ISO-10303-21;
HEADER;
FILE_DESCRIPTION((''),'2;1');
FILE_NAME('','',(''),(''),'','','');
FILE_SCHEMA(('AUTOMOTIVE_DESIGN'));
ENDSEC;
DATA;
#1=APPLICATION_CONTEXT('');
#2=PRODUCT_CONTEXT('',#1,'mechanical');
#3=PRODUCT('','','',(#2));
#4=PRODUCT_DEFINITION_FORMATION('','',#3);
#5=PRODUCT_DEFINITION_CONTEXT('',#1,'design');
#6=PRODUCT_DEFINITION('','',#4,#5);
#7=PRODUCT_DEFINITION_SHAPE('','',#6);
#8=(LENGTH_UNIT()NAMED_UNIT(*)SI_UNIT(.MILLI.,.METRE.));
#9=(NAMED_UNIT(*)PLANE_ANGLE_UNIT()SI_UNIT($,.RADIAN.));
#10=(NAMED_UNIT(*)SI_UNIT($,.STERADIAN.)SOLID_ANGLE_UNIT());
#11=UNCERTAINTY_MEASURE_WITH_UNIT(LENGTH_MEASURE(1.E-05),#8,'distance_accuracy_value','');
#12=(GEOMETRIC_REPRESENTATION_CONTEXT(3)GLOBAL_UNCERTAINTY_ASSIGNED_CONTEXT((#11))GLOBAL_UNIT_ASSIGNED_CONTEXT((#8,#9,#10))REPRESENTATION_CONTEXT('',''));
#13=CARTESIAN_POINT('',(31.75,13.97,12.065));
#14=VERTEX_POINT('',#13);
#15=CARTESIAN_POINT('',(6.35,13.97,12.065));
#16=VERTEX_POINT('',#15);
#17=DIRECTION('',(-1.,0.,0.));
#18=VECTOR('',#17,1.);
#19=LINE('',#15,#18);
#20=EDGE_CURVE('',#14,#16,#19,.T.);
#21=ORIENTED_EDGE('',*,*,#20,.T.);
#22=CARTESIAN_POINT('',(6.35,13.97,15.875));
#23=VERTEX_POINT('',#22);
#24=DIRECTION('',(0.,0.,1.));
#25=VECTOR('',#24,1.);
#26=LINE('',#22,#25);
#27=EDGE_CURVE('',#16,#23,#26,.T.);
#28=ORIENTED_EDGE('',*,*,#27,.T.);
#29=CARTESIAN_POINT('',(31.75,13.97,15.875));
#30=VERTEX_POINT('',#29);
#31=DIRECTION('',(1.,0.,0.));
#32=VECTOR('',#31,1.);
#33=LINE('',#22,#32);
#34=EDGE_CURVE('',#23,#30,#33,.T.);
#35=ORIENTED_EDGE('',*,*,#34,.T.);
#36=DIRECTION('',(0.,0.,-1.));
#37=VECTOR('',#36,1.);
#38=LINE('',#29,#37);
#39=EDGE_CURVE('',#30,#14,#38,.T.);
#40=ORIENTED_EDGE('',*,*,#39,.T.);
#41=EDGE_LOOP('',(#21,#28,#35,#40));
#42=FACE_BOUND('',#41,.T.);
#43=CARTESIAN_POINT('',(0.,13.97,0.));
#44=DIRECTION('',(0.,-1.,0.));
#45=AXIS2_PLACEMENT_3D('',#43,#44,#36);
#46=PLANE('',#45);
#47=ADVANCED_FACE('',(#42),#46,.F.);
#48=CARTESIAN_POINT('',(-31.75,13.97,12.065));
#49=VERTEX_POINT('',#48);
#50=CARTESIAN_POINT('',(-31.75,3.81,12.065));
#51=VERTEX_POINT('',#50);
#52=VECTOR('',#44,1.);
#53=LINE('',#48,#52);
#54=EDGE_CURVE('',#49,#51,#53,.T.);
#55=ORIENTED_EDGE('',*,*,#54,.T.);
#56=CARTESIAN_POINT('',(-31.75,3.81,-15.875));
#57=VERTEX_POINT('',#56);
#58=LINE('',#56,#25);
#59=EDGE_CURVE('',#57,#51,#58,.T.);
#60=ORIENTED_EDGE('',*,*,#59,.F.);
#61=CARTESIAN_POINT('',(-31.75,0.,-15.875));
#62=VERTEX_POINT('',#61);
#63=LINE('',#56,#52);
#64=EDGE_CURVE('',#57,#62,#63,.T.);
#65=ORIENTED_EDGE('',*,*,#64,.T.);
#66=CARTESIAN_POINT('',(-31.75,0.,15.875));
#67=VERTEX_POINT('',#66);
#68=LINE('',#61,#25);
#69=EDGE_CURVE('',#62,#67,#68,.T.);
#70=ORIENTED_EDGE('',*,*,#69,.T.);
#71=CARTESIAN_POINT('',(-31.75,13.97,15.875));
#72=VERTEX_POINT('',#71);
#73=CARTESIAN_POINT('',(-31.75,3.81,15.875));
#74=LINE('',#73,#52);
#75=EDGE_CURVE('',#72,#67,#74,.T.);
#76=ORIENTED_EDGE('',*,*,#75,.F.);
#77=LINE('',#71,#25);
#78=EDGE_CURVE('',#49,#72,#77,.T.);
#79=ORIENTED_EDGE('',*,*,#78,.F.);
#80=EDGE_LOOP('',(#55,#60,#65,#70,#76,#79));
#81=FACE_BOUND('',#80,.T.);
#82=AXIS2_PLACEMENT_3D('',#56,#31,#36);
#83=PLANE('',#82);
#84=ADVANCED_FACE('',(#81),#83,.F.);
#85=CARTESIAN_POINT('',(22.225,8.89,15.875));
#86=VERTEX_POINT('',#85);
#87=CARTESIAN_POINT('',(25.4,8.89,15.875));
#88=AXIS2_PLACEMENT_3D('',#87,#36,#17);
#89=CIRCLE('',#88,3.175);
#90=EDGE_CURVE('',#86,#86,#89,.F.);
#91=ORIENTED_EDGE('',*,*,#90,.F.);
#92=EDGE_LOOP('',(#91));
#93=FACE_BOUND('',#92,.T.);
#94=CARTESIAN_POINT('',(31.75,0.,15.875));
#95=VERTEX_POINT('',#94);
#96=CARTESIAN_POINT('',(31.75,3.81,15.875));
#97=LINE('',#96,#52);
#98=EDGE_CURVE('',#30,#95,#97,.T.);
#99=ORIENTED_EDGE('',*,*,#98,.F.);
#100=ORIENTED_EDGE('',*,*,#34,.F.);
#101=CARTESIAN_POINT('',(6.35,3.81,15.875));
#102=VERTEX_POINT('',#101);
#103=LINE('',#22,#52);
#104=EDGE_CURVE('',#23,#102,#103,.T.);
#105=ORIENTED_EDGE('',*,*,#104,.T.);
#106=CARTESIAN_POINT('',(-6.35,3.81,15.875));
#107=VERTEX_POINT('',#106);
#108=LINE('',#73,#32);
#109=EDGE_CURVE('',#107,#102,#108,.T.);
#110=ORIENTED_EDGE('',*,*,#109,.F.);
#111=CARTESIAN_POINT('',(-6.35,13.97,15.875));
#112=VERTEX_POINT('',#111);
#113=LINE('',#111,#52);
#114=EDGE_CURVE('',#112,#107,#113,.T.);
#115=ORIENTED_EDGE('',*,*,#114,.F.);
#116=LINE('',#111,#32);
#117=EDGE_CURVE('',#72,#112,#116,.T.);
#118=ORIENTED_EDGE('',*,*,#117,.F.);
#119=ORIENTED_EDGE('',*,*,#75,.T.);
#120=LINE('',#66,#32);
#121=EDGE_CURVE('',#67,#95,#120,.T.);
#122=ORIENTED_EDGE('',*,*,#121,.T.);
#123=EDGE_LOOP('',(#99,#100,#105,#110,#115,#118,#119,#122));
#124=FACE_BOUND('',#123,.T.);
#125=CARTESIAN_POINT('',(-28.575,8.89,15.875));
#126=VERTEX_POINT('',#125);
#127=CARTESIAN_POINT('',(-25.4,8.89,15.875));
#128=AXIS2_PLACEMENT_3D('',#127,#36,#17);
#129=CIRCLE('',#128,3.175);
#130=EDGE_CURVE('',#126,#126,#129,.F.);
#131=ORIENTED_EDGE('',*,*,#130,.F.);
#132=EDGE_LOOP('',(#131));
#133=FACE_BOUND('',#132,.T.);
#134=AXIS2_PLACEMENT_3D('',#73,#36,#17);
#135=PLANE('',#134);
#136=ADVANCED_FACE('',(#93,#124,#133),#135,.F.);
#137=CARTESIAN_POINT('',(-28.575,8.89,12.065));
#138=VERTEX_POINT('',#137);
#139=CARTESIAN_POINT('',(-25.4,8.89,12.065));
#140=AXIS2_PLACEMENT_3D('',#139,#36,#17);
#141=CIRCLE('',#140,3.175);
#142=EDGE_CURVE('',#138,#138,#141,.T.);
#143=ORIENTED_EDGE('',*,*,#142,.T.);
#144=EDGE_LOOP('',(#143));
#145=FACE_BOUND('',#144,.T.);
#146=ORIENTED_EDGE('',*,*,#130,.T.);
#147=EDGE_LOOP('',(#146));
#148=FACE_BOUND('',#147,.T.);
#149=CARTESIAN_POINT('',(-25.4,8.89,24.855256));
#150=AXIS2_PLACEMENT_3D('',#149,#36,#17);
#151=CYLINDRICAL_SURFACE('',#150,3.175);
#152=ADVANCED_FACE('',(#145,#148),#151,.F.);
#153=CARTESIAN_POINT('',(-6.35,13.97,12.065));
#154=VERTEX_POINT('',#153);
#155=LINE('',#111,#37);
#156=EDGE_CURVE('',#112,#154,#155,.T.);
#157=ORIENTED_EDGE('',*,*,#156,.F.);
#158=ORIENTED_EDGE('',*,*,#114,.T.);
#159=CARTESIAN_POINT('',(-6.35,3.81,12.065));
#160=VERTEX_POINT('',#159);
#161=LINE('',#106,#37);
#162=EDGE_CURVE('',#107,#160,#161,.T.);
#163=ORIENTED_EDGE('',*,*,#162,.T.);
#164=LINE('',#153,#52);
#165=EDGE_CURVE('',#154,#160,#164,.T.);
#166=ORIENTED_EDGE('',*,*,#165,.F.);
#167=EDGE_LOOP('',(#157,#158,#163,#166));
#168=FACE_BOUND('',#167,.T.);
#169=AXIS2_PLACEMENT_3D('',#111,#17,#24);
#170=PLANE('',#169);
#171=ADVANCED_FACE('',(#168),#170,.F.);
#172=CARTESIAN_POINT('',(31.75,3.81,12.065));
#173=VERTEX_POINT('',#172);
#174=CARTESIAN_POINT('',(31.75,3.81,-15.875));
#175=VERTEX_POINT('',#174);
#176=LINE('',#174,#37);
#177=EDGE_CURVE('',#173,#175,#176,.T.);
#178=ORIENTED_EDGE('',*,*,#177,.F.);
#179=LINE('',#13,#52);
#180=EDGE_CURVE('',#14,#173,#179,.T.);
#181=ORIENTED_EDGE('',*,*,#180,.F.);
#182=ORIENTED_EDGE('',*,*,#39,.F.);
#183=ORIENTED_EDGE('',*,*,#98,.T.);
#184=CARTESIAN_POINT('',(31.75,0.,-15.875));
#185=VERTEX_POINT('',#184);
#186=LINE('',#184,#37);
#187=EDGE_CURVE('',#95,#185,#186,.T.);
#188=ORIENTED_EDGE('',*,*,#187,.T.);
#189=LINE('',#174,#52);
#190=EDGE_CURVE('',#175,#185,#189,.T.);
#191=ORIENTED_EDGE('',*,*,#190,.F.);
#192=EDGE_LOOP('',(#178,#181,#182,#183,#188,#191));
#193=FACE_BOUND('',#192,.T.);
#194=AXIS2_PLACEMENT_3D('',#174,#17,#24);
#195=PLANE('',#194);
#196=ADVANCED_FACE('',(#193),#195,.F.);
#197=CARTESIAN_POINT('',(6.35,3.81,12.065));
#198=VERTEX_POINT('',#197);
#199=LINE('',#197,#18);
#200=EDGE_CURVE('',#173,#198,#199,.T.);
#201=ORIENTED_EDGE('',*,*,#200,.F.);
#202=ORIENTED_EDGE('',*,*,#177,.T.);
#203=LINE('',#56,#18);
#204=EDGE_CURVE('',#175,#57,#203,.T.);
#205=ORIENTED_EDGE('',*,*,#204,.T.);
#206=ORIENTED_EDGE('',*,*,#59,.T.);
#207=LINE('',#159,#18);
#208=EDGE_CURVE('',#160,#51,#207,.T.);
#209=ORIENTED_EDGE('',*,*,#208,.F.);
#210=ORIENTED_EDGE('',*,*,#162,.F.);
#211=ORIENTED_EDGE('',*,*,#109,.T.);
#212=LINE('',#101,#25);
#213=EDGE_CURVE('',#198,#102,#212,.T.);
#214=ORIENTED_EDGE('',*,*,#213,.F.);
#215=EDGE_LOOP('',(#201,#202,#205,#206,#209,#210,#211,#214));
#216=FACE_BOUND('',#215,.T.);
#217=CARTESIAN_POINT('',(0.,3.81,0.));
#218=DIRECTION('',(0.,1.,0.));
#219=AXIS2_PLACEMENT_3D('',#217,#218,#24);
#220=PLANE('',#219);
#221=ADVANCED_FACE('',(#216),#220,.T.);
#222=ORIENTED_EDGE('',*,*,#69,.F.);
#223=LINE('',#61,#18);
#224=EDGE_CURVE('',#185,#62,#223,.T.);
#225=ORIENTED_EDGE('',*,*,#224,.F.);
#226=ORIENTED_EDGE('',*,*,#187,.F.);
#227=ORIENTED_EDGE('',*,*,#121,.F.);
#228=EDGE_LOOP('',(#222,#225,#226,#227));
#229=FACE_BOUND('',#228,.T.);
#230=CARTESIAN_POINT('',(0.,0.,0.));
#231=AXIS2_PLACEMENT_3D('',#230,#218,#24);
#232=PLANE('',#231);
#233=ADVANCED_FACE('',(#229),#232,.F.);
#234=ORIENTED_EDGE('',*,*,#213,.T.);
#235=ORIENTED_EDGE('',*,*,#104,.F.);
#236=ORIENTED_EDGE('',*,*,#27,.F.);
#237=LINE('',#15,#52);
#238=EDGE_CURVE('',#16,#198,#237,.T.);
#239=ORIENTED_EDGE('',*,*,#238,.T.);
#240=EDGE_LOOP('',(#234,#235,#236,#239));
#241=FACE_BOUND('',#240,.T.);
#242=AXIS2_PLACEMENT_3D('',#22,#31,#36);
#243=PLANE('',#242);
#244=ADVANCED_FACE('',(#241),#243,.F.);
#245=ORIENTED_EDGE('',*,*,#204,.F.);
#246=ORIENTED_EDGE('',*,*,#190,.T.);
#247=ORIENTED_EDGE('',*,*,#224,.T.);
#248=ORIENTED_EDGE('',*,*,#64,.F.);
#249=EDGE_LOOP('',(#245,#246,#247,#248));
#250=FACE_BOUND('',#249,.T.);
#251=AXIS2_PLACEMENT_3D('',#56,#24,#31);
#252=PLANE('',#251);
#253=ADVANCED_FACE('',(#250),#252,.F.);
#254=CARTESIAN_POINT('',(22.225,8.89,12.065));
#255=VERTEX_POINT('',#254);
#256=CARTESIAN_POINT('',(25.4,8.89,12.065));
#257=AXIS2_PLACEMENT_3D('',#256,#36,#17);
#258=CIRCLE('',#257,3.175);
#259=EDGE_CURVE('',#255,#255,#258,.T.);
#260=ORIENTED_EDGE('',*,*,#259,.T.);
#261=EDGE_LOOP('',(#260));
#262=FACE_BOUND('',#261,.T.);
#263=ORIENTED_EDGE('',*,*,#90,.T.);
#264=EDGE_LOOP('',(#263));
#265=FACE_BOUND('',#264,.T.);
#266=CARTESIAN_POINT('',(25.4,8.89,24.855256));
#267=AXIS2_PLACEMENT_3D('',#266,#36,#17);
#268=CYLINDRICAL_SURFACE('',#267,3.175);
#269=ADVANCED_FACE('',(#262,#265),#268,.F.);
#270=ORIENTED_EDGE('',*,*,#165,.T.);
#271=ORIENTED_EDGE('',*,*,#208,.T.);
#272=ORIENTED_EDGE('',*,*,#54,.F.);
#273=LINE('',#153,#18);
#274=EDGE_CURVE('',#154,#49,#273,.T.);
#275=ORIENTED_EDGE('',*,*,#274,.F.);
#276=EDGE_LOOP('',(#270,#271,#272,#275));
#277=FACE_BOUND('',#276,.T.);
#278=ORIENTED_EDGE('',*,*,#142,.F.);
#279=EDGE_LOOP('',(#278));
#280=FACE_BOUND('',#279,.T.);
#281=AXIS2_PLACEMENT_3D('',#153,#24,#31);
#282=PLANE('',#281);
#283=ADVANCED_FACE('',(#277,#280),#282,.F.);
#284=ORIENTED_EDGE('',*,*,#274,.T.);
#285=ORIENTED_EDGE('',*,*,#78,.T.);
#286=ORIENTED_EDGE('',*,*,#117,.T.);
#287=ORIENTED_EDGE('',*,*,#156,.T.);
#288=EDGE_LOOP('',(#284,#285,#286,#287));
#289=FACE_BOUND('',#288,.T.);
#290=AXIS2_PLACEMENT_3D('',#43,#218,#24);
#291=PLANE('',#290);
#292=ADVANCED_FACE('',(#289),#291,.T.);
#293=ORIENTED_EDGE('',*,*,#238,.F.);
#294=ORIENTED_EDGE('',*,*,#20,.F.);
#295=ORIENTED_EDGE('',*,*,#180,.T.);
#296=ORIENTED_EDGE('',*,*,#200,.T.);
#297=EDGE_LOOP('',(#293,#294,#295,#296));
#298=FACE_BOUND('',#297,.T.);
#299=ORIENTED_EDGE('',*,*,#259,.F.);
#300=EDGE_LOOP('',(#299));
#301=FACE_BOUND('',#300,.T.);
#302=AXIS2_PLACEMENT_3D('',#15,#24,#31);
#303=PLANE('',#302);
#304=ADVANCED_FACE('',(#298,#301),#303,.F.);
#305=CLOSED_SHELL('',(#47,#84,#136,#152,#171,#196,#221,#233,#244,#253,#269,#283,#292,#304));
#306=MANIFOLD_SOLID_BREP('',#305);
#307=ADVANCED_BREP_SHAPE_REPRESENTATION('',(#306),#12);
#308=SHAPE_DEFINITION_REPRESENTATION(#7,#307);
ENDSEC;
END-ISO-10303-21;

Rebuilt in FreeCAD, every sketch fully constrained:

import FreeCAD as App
import Part
import Sketcher
from FreeCAD import Vector
Q = App.Units.Quantity

doc = App.newDocument("Part")
params = doc.addObject("Spreadsheet::Sheet", "Params")
for row, (alias, value) in enumerate([
    ("sketch1_width", "2.5 in"),
    ("sketch1_height", "1.25 in"),
    ("pad1_length", "0.15 in"),
    ("sketch2_width", "1 in"),
    ("sketch2_height", "0.15 in"),
    ("pad2_length", "0.4 in"),
    ("sketch3_diameter", "0.25 in"),
    ("pocket1_length", "0.15 in"),
], start=1):
    params.set(f"A{row}", alias)
    params.set(f"B{row}", "=" + value)
    params.setAlias(f"B{row}", alias)

body = doc.addObject("PartDesign::Body", "Body")

sketch1 = body.newObject("Sketcher::SketchObject", "Sketch")
sketch1.AttachmentSupport = (doc.getObject("XZ_Plane"), [""])
sketch1.MapMode = "FlatFace"
sketch1.addGeometry([
    Part.LineSegment(Vector(-32, -16, 0), Vector(-32, 16, 0)),
    Part.LineSegment(Vector(-32, 16, 0), Vector(32, 16, 0)),
    Part.LineSegment(Vector(32, 16, 0), Vector(32, -16, 0)),
    Part.LineSegment(Vector(32, -16, 0), Vector(-32, -16, 0)),
], False)
sketch1.addConstraint([
    Sketcher.Constraint("Coincident", 0, 2, 1, 1),
    Sketcher.Constraint("Coincident", 1, 2, 2, 1),
    Sketcher.Constraint("Coincident", 2, 2, 3, 1),
    Sketcher.Constraint("Coincident", 3, 2, 0, 1),
    Sketcher.Constraint("Vertical", 0),
    Sketcher.Constraint("Horizontal", 1),
    Sketcher.Constraint("Vertical", 2),
    Sketcher.Constraint("Horizontal", 3),
    Sketcher.Constraint("Symmetric", 0, 2, 2, 2, -1, 1),
    Sketcher.Constraint("DistanceX", 1, 1, 1, 2, Q("2.5 in")),
    Sketcher.Constraint("DistanceY", 0, 1, 0, 2, Q("1.25 in")),
])
sketch1.setExpression("Constraints[9]", "Params.sketch1_width")
sketch1.setExpression("Constraints[10]", "Params.sketch1_height")
pad1 = body.newObject("PartDesign::Pad", "Pad")
pad1.Profile = sketch1
pad1.setExpression("Length", "Params.pad1_length")
pad1.Reversed = True

sketch2 = body.newObject("Sketcher::SketchObject", "Sketch001")
sketch2.AttachmentSupport = (doc.getObject("XZ_Plane"), [""])
sketch2.MapMode = "FlatFace"
sketch2.AttachmentOffset = App.Placement(Vector(0, 0, -0.15 * 25.4), App.Rotation())
sketch2.addGeometry([
    Part.LineSegment(Vector(-31.8, 12.1, 0), Vector(-31.8, 15.9, 0)),
    Part.LineSegment(Vector(-31.8, 15.9, 0), Vector(-6.3, 15.9, 0)),
    Part.LineSegment(Vector(-6.3, 15.9, 0), Vector(-6.3, 12.1, 0)),
    Part.LineSegment(Vector(-6.3, 12.1, 0), Vector(-31.8, 12.1, 0)),
    Part.LineSegment(Vector(6.3, 12.1, 0), Vector(6.3, 15.9, 0)),
    Part.LineSegment(Vector(6.3, 15.9, 0), Vector(31.8, 15.9, 0)),
    Part.LineSegment(Vector(31.8, 15.9, 0), Vector(31.8, 12.1, 0)),
    Part.LineSegment(Vector(31.8, 12.1, 0), Vector(6.3, 12.1, 0)),
], False)
sketch2.addConstraint([
    Sketcher.Constraint("Coincident", 0, 2, 1, 1),
    Sketcher.Constraint("Coincident", 1, 2, 2, 1),
    Sketcher.Constraint("Coincident", 2, 2, 3, 1),
    Sketcher.Constraint("Coincident", 3, 2, 0, 1),
    Sketcher.Constraint("Coincident", 4, 2, 5, 1),
    Sketcher.Constraint("Coincident", 5, 2, 6, 1),
    Sketcher.Constraint("Coincident", 6, 2, 7, 1),
    Sketcher.Constraint("Coincident", 7, 2, 4, 1),
    Sketcher.Constraint("Vertical", 0),
    Sketcher.Constraint("Horizontal", 1),
    Sketcher.Constraint("Vertical", 2),
    Sketcher.Constraint("Horizontal", 3),
    Sketcher.Constraint("Vertical", 4),
    Sketcher.Constraint("Horizontal", 5),
    Sketcher.Constraint("Vertical", 6),
    Sketcher.Constraint("Horizontal", 7),
    Sketcher.Constraint("Symmetric", 1, 2, 4, 2, -2),
    Sketcher.Constraint("Symmetric", 3, 2, 6, 2, -2),
    Sketcher.Constraint("DistanceX", 1, 1, 1, 2, Q("1 in")),
    Sketcher.Constraint("DistanceY", 0, 1, 0, 2, Q("0.15 in")),
    Sketcher.Constraint("DistanceX", 1, 2, 4, 2, Q("0.5 in")),
    Sketcher.Constraint("DistanceY", -1, 1, 0, 2, Q("0.625 in")),
])
sketch2.setExpression("Constraints[18]", "Params.sketch2_width")
sketch2.setExpression("Constraints[19]", "Params.sketch2_height")
pad2 = body.newObject("PartDesign::Pad", "Pad001")
pad2.Profile = sketch2
pad2.setExpression("Length", "Params.pad2_length")
pad2.Reversed = True

sketch3 = body.newObject("Sketcher::SketchObject", "Sketch002")
sketch3.AttachmentSupport = (doc.getObject("XY_Plane"), [""])
sketch3.MapMode = "FlatFace"
sketch3.AttachmentOffset = App.Placement(Vector(0, 0, 0.475 * 25.4), App.Rotation())
sketch3.addGeometry([
    Part.Circle(Vector(-25.4, 8.9, 0), Vector(0, 0, 1), 3.2),
    Part.Circle(Vector(25.4, 8.9, 0), Vector(0, 0, 1), 3.2),
], False)
sketch3.addConstraint([
    Sketcher.Constraint("Equal", 0, 1),
    Sketcher.Constraint("Symmetric", 0, 3, 1, 3, -2),
    Sketcher.Constraint("Diameter", 0, Q("0.25 in")),
    Sketcher.Constraint("DistanceX", 0, 3, -1, 1, Q("1 in")),
    Sketcher.Constraint("DistanceY", -1, 1, 0, 3, Q("0.35 in")),
])
sketch3.setExpression("Constraints[2]", "Params.sketch3_diameter")
pocket1 = body.newObject("PartDesign::Pocket", "Pocket")
pocket1.Profile = sketch3
pocket1.setExpression("Length", "Params.pocket1_length")
pocket1.Reversed = True

doc.recompute()
